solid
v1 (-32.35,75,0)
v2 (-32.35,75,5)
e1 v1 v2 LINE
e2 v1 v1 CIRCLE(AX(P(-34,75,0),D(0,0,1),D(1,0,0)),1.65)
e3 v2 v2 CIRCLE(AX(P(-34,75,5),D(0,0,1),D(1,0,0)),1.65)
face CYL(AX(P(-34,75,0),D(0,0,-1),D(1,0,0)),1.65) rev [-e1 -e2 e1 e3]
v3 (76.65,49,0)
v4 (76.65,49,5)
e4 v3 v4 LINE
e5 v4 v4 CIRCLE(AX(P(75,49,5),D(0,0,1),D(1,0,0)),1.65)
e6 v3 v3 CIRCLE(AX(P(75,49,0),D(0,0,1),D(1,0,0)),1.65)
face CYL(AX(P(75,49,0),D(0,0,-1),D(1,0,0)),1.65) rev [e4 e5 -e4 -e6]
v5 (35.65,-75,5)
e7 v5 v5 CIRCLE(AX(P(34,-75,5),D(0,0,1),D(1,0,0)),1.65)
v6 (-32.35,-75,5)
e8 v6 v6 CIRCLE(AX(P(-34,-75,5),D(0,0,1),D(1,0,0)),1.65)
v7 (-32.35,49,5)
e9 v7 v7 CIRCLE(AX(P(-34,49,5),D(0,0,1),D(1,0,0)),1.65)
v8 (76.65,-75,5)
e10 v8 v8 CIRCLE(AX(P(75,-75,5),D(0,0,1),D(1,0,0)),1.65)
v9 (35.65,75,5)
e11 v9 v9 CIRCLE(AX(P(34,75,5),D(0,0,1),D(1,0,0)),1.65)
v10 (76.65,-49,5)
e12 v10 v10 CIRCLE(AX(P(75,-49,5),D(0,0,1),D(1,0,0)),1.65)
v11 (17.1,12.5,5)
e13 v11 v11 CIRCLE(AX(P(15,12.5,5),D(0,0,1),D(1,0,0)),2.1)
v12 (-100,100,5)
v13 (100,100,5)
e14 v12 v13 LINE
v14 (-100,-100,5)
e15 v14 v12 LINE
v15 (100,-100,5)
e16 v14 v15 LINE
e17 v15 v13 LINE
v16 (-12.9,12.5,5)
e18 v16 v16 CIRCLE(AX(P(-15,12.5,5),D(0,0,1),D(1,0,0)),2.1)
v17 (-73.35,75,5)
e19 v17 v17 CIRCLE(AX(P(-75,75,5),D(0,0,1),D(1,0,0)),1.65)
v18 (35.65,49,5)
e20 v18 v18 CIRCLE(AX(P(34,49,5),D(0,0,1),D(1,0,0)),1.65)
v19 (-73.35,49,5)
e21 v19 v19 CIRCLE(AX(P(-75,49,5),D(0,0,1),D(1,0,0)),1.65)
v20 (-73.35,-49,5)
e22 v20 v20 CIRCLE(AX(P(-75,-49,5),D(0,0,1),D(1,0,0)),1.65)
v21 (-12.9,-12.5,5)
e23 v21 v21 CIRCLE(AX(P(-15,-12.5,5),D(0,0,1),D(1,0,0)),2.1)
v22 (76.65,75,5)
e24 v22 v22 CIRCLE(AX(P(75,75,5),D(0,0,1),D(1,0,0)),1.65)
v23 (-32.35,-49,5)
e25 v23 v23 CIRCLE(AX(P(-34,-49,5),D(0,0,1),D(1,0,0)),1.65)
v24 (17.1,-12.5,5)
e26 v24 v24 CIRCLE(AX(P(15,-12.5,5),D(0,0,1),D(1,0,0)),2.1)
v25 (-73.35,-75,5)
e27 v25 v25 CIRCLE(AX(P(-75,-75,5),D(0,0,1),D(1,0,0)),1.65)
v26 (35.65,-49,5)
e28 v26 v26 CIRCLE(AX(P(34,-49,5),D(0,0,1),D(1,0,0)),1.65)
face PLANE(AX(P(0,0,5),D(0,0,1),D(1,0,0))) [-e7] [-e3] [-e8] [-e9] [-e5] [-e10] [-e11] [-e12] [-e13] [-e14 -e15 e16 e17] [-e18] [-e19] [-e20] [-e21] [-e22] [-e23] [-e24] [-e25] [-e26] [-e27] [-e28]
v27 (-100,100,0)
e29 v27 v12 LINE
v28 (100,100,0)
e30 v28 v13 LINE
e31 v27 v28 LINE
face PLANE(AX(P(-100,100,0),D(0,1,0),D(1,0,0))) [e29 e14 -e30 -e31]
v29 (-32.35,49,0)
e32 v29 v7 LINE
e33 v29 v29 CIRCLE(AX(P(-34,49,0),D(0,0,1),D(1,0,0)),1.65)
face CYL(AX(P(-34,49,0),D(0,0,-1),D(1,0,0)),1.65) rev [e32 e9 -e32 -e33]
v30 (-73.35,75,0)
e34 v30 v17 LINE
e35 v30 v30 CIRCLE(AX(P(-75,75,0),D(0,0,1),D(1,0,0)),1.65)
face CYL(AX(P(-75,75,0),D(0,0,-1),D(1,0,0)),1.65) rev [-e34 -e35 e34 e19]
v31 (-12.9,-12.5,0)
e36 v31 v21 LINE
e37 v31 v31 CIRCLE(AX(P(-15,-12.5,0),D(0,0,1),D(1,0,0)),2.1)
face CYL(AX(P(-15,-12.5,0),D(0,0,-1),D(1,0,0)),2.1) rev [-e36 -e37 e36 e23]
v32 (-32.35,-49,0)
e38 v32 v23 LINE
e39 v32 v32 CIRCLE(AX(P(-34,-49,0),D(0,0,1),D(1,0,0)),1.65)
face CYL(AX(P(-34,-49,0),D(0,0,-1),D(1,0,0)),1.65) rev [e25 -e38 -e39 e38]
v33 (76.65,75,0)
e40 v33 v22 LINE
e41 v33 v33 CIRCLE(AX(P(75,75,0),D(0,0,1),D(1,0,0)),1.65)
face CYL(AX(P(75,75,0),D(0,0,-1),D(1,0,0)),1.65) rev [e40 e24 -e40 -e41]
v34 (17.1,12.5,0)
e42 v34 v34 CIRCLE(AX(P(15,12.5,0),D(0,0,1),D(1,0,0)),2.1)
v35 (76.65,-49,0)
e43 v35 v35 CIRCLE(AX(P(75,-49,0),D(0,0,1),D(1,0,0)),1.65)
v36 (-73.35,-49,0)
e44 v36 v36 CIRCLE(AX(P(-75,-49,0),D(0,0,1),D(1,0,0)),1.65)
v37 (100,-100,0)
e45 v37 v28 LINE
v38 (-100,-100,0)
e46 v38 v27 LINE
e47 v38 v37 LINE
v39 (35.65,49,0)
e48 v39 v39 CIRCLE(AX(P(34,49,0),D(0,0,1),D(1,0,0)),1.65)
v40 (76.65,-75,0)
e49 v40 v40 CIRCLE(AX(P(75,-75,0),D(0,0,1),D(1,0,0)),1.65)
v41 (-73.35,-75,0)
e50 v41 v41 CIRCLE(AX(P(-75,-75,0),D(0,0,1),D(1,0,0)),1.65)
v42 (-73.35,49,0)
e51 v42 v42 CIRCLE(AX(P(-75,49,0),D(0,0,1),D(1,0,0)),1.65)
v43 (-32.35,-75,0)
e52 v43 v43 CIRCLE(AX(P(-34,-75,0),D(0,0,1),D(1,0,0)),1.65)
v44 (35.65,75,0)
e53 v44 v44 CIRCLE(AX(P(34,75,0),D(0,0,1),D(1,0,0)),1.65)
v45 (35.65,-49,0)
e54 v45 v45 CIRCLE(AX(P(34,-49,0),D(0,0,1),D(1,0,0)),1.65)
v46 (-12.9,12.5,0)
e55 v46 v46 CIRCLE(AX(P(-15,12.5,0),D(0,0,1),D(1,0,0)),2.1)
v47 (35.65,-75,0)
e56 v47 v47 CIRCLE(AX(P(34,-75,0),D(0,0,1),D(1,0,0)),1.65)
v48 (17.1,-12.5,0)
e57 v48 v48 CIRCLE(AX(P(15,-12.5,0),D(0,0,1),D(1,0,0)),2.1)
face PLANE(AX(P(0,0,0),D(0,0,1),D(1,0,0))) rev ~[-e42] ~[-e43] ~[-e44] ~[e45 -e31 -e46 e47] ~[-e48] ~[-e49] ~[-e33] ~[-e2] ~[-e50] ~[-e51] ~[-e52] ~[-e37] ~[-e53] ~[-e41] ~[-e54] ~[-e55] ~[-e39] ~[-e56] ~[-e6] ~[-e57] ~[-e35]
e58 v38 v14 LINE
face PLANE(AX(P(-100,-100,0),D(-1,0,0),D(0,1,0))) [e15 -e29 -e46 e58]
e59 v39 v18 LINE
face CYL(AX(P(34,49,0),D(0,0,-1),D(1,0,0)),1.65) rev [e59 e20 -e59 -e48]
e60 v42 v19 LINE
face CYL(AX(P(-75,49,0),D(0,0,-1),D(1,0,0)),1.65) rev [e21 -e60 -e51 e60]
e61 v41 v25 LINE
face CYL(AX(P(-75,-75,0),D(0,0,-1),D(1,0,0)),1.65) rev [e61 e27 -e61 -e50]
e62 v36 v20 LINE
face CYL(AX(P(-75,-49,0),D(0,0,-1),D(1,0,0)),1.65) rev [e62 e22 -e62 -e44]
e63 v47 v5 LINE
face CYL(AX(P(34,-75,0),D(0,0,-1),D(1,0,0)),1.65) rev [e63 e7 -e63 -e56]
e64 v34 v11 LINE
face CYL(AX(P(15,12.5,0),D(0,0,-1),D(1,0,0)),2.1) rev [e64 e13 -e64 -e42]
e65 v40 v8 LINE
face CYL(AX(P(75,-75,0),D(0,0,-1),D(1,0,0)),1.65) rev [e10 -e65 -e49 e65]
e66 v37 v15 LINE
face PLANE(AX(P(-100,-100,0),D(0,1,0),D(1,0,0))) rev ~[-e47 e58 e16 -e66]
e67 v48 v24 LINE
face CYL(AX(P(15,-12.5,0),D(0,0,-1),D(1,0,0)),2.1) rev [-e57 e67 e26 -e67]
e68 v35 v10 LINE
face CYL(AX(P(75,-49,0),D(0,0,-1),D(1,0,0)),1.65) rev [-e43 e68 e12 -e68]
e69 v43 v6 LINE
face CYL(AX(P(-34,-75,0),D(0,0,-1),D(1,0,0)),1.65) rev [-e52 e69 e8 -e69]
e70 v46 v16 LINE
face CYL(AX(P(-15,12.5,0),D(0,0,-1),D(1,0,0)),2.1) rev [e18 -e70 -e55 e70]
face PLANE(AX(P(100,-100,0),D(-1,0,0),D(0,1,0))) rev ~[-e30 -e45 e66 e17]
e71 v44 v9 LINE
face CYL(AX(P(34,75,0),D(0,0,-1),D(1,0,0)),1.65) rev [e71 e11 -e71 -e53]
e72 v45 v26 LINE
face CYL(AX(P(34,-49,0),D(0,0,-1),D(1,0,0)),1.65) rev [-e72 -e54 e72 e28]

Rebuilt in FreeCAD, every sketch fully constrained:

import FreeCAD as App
import Part
import Sketcher

doc = App.newDocument("Part")
body = doc.addObject("PartDesign::Body", "Body")

sketch1 = body.newObject("Sketcher::SketchObject", "Sketch")
sketch1.AttachmentSupport = (doc.getObject("XY_Plane"), [""])
sketch1.MapMode = "FlatFace"
sketch1.addGeometry(Part.LineSegment(App.Vector(-100, 100, 0), App.Vector(-100, -100, 0)), False)
sketch1.addGeometry(Part.LineSegment(App.Vector(-100, -100, 0), App.Vector(100, -100, 0)), False)
sketch1.addGeometry(Part.LineSegment(App.Vector(100, -100, 0), App.Vector(100, 100, 0)), False)
sketch1.addGeometry(Part.LineSegment(App.Vector(100, 100, 0), App.Vector(-100, 100, 0)), False)
sketch1.addGeometry(Part.Circle(App.Vector(-75, -75, 0), App.Vector(0, 0, 1), 1.6), False)
sketch1.addGeometry(Part.Circle(App.Vector(-75, -49, 0), App.Vector(0, 0, 1), 1.6), False)
sketch1.addGeometry(Part.Circle(App.Vector(-34, -75, 0), App.Vector(0, 0, 1), 1.6), False)
sketch1.addGeometry(Part.Circle(App.Vector(-34, -49, 0), App.Vector(0, 0, 1), 1.6), False)
sketch1.addGeometry(Part.Circle(App.Vector(-15, -12.5, 0), App.Vector(0, 0, 1), 2.1), False)
sketch1.addGeometry(Part.Circle(App.Vector(34, -75, 0), App.Vector(0, 0, 1), 1.6), False)
sketch1.addGeometry(Part.Circle(App.Vector(34, -49, 0), App.Vector(0, 0, 1), 1.6), False)
sketch1.addGeometry(Part.Circle(App.Vector(75, -75, 0), App.Vector(0, 0, 1), 1.6), False)
sketch1.addGeometry(Part.Circle(App.Vector(75, -49, 0), App.Vector(0, 0, 1), 1.6), False)
sketch1.addGeometry(Part.Circle(App.Vector(15, -12.5, 0), App.Vector(0, 0, 1), 2.1), False)
sketch1.addGeometry(Part.Circle(App.Vector(-15, 12.5, 0), App.Vector(0, 0, 1), 2.1), False)
sketch1.addGeometry(Part.Circle(App.Vector(-75, 49, 0), App.Vector(0, 0, 1), 1.6), False)
sketch1.addGeometry(Part.Circle(App.Vector(-75, 75, 0), App.Vector(0, 0, 1), 1.6), False)
sketch1.addGeometry(Part.Circle(App.Vector(-34, 49, 0), App.Vector(0, 0, 1), 1.6), False)
sketch1.addGeometry(Part.Circle(App.Vector(-34, 75, 0), App.Vector(0, 0, 1), 1.6), False)
sketch1.addGeometry(Part.Circle(App.Vector(15, 12.5, 0), App.Vector(0, 0, 1), 2.1), False)
sketch1.addGeometry(Part.Circle(App.Vector(34, 49, 0), App.Vector(0, 0, 1), 1.6), False)
sketch1.addGeometry(Part.Circle(App.Vector(34, 75, 0), App.Vector(0, 0, 1), 1.6), False)
sketch1.addGeometry(Part.Circle(App.Vector(75, 49, 0), App.Vector(0, 0, 1), 1.6), False)
sketch1.addGeometry(Part.Circle(App.Vector(75, 75, 0), App.Vector(0, 0, 1), 1.6), False)
sketch1.addConstraint(Sketcher.Constraint("Coincident", 0, 2, 1, 1))
sketch1.addConstraint(Sketcher.Constraint("Coincident", 1, 2, 2, 1))
sketch1.addConstraint(Sketcher.Constraint("Coincident", 2, 2, 3, 1))
sketch1.addConstraint(Sketcher.Constraint("Coincident", 3, 2, 0, 1))
sketch1.addConstraint(Sketcher.Constraint("Vertical", 0))
sketch1.addConstraint(Sketcher.Constraint("Horizontal", 1))
sketch1.addConstraint(Sketcher.Constraint("Vertical", 2))
sketch1.addConstraint(Sketcher.Constraint("Horizontal", 3))
sketch1.addConstraint(Sketcher.Constraint("Equal", 4, 5))
sketch1.addConstraint(Sketcher.Constraint("Equal", 5, 6))
sketch1.addConstraint(Sketcher.Constraint("Equal", 6, 7))
sketch1.addConstraint(Sketcher.Constraint("Equal", 7, 9))
sketch1.addConstraint(Sketcher.Constraint("Equal", 9, 10))
sketch1.addConstraint(Sketcher.Constraint("Equal", 10, 11))
sketch1.addConstraint(Sketcher.Constraint("Equal", 11, 12))
sketch1.addConstraint(Sketcher.Constraint("Equal", 8, 13))
sketch1.addConstraint(Sketcher.Constraint("Equal", 13, 14))
sketch1.addConstraint(Sketcher.Constraint("Equal", 12, 15))
sketch1.addConstraint(Sketcher.Constraint("Equal", 15, 16))
sketch1.addConstraint(Sketcher.Constraint("Equal", 16, 17))
sketch1.addConstraint(Sketcher.Constraint("Equal", 17, 18))
sketch1.addConstraint(Sketcher.Constraint("Equal", 14, 19))
sketch1.addConstraint(Sketcher.Constraint("Equal", 18, 20))
sketch1.addConstraint(Sketcher.Constraint("Equal", 20, 21))
sketch1.addConstraint(Sketcher.Constraint("Equal", 21, 22))
sketch1.addConstraint(Sketcher.Constraint("Equal", 22, 23))
sketch1.addConstraint(Sketcher.Constraint("Symmetric", 13, 3, 14, 3, -1, 1))
sketch1.addConstraint(Sketcher.Constraint("Symmetric", 12, 3, 15, 3, -1, 1))
sketch1.addConstraint(Sketcher.Constraint("Symmetric", 11, 3, 16, 3, -1, 1))
sketch1.addConstraint(Sketcher.Constraint("Symmetric", 10, 3, 17, 3, -1, 1))
sketch1.addConstraint(Sketcher.Constraint("Symmetric", 9, 3, 18, 3, -1, 1))
sketch1.addConstraint(Sketcher.Constraint("Symmetric", 8, 3, 19, 3, -1, 1))
sketch1.addConstraint(Sketcher.Constraint("Symmetric", 7, 3, 20, 3, -1, 1))
sketch1.addConstraint(Sketcher.Constraint("Symmetric", 6, 3, 21, 3, -1, 1))
sketch1.addConstraint(Sketcher.Constraint("Symmetric", 5, 3, 22, 3, -1, 1))
sketch1.addConstraint(Sketcher.Constraint("Symmetric", 4, 3, 23, 3, -1, 1))
sketch1.addConstraint(Sketcher.Constraint("Symmetric", 0, 2, 2, 2, -1, 1))
sketch1.addConstraint(Sketcher.Constraint("Symmetric", 6, 3, 9, 3, -2))
sketch1.addConstraint(Sketcher.Constraint("Symmetric", 7, 3, 10, 3, -2))
sketch1.addConstraint(Sketcher.Constraint("Symmetric", 4, 3, 11, 3, -2))
sketch1.addConstraint(Sketcher.Constraint("Symmetric", 5, 3, 12, 3, -2))
sketch1.addConstraint(Sketcher.Constraint("Symmetric", 8, 3, 13, 3, -2))
sketch1.addConstraint(Sketcher.Constraint("Horizontal", 4, 3, 6, 3))
sketch1.addConstraint(Sketcher.Constraint("Horizontal", 5, 3, 7, 3))
sketch1.addConstraint(Sketcher.Constraint("Vertical", 4, 3, 5, 3))
sketch1.addConstraint(Sketcher.Constraint("Vertical", 6, 3, 7, 3))
sketch1.addConstraint(Sketcher.Constraint("Equal", 3, 0))
sketch1.addConstraint(Sketcher.Constraint("Diameter", 4, 3.3))
sketch1.addConstraint(Sketcher.Constraint("Diameter", 8, 4.2))
sketch1.addConstraint(Sketcher.Constraint("DistanceX", 1, 1, 1, 2, 200.0))
sketch1.addConstraint(Sketcher.Constraint("DistanceX", 4, 3, -1, 1, 75.0))
sketch1.addConstraint(Sketcher.Constraint("DistanceY", 4, 3, -1, 1, 75.0))
sketch1.addConstraint(Sketcher.Constraint("DistanceY", 5, 3, -1, 1, 49.0))
sketch1.addConstraint(Sketcher.Constraint("DistanceX", 6, 3, -1, 1, 34.0))
sketch1.addConstraint(Sketcher.Constraint("DistanceX", 8, 3, -1, 1, 15.0))
sketch1.addConstraint(Sketcher.Constraint("DistanceY", 8, 3, 14, 3, 25.0))
pad1 = body.newObject("PartDesign::Pad", "Pad")
pad1.Profile = sketch1
pad1.Length = 5

doc.recompute()
